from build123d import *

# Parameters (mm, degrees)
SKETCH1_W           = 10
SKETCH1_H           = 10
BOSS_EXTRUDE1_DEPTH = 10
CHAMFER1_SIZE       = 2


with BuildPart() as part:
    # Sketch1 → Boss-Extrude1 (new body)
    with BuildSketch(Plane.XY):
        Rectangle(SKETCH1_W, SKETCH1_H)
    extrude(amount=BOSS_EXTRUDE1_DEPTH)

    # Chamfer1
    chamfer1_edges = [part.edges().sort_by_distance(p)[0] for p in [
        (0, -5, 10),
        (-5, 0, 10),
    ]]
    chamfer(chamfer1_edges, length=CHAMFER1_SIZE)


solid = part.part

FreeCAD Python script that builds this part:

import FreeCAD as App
import Part
import Sketcher

V = App.Vector


def edges_at(feature, points):
    """Names of the edges that pass closest to the given points."""
    edges = feature.Shape.Edges
    near = lambda p: min(range(len(edges)), key=lambda i: edges[i].distToShape(Part.Vertex(*p))[0])
    return sorted({f"Edge{near(p) + 1}" for p in points})


def add_polygon(sketch, points):
    """Adds a closed chain of lines whose ends are joined by coincident constraints."""
    first, n = sketch.GeometryCount, len(points)
    for a, b in zip(points, points[1:] + points[:1]):
        sketch.addGeometry(Part.LineSegment(App.Vector(*a, 0), App.Vector(*b, 0)), False)
    for i in range(n):
        sketch.addConstraint(Sketcher.Constraint("Coincident", first + i, 2, first + (i + 1) % n, 1))

doc = App.newDocument("Part")
params = doc.addObject("Spreadsheet::Sheet", "Params")
for row, (alias, value) in enumerate([
    ("sketch1_width", "10 mm"),
    ("pad1_length", "10 mm"),
    ("chamfer_size", "2 mm"),
], start=1):
    params.set(f"A{row}", alias)
    params.set(f"B{row}", "=" + value)
    params.setAlias(f"B{row}", alias)

body = doc.addObject("PartDesign::Body", "Body")

sketch1 = doc.addObject("Sketcher::SketchObject", "Sketch")
body.addObject(sketch1)
sketch1.AttachmentSupport = (doc.XY_Plane, [""])
sketch1.MapMode = "FlatFace"
add_polygon(sketch1, [(-5, 5), (-5, -5), (5, -5), (5, 5)])
sketch1.addConstraint(Sketcher.Constraint("Vertical", 0))
sketch1.addConstraint(Sketcher.Constraint("Horizontal", 1))
sketch1.addConstraint(Sketcher.Constraint("Vertical", 2))
sketch1.addConstraint(Sketcher.Constraint("Horizontal", 3))
sketch1.addConstraint(Sketcher.Constraint("Symmetric", 0, 2, 2, 2, -1, 1))
sketch1.addConstraint(Sketcher.Constraint("Equal", 3, 0))
sketch1.addConstraint(Sketcher.Constraint("DistanceX", 1, 1, 1, 2, 10.0))
sketch1.setExpression("Constraints[10]", "Params.sketch1_width")
pad1 = doc.addObject("PartDesign::Pad", "Pad")
body.addObject(pad1)
pad1.Profile = sketch1
pad1.setExpression("Length", "Params.pad1_length")
doc.recompute()

chamfer = doc.addObject("PartDesign::Chamfer", "Chamfer")
body.addObject(chamfer)
chamfer.Base = (pad1, edges_at(pad1, [(0, -5, 10), (-5, 0, 10)]))
chamfer.setExpression("Size", "Params.chamfer_size")

doc.recompute()
